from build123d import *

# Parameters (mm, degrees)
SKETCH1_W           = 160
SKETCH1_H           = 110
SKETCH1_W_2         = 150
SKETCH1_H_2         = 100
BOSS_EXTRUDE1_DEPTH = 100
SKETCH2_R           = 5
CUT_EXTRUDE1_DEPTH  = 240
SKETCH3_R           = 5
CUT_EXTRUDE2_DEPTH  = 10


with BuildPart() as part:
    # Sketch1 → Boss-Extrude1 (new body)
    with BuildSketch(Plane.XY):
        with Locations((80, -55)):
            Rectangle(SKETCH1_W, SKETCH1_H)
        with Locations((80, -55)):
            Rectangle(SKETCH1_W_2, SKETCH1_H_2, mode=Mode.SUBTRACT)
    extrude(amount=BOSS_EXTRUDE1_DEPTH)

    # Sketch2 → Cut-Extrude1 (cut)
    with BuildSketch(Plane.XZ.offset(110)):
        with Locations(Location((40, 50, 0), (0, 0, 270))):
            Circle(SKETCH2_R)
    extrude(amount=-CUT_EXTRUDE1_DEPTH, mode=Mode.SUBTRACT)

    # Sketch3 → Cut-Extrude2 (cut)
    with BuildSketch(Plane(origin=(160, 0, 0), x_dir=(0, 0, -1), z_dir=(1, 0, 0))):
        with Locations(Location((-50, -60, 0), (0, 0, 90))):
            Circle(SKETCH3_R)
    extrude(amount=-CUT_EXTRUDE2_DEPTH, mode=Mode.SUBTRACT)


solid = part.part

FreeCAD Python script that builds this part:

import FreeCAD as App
import Part
import Sketcher

V = App.Vector
Q = App.Units.Quantity

doc = App.newDocument("Part")
body = doc.addObject("PartDesign::Body", "Body")

# Sketch on XY plane
sketch1 = body.newObject("Sketcher::SketchObject", "Sketch")
sketch1.AttachmentSupport = (doc.getObject("XY_Plane"), [""])
sketch1.MapMode = "FlatFace"
sketch1.addGeometry(Part.LineSegment(V(0, 0, 0), V(0, -110, 0)), False)
sketch1.addGeometry(Part.LineSegment(V(0, -110, 0), V(160, -110, 0)), False)
sketch1.addGeometry(Part.LineSegment(V(160, -110, 0), V(160, 0, 0)), False)
sketch1.addGeometry(Part.LineSegment(V(160, 0, 0), V(0, 0, 0)), False)
sketch1.addGeometry(Part.LineSegment(V(155, -105, 0), V(5, -105, 0)), False)
sketch1.addGeometry(Part.LineSegment(V(5, -105, 0), V(5, -5, 0)), False)
sketch1.addGeometry(Part.LineSegment(V(5, -5, 0), V(155, -5, 0)), False)
sketch1.addGeometry(Part.LineSegment(V(155, -5, 0), V(155, -105, 0)), False)
sketch1.addConstraint(Sketcher.Constraint("Coincident", 0, 2, 1, 1))
sketch1.addConstraint(Sketcher.Constraint("Coincident", 1, 2, 2, 1))
sketch1.addConstraint(Sketcher.Constraint("Coincident", 2, 2, 3, 1))
sketch1.addConstraint(Sketcher.Constraint("Coincident", 3, 2, 0, 1))
sketch1.addConstraint(Sketcher.Constraint("Coincident", 4, 2, 5, 1))
sketch1.addConstraint(Sketcher.Constraint("Coincident", 5, 2, 6, 1))
sketch1.addConstraint(Sketcher.Constraint("Coincident", 6, 2, 7, 1))
sketch1.addConstraint(Sketcher.Constraint("Coincident", 7, 2, 4, 1))
sketch1.addConstraint(Sketcher.Constraint("Vertical", 0))
sketch1.addConstraint(Sketcher.Constraint("Horizontal", 1))
sketch1.addConstraint(Sketcher.Constraint("Vertical", 2))
sketch1.addConstraint(Sketcher.Constraint("Horizontal", 3))
sketch1.addConstraint(Sketcher.Constraint("Horizontal", 4))
sketch1.addConstraint(Sketcher.Constraint("Vertical", 5))
sketch1.addConstraint(Sketcher.Constraint("Horizontal", 6))
sketch1.addConstraint(Sketcher.Constraint("Vertical", 7))
sketch1.addConstraint(Sketcher.Constraint("Coincident", 3, 2, -1, 1))
sketch1.addConstraint(Sketcher.Constraint("DistanceX", 1, 1, 1, 2, Q("160 mm")))
sketch1.addConstraint(Sketcher.Constraint("DistanceX", 4, 2, 4, 1, Q("150 mm")))
sketch1.addConstraint(Sketcher.Constraint("DistanceY", 0, 2, 0, 1, Q("110 mm")))
sketch1.addConstraint(Sketcher.Constraint("DistanceY", 5, 1, 5, 2, Q("100 mm")))
sketch1.addConstraint(Sketcher.Constraint("DistanceX", -1, 1, 4, 2, Q("5 mm")))
sketch1.addConstraint(Sketcher.Constraint("DistanceY", 4, 2, -1, 1, Q("105 mm")))
pad1 = body.newObject("PartDesign::Pad", "Pad")
pad1.Profile = sketch1
pad1.Length = 100

# Sketch on XZ plane
sketch2 = body.newObject("Sketcher::SketchObject", "Sketch001")
sketch2.AttachmentSupport = (doc.getObject("XZ_Plane"), [""])
sketch2.MapMode = "FlatFace"
sketch2.AttachmentOffset = App.Placement(V(0, 0, 110), App.Rotation())
sketch2.addGeometry(Part.Circle(V(40, 50, 0), V(0, 0, 1), 5), False)
sketch2.addConstraint(Sketcher.Constraint("Diameter", 0, Q("10 mm")))
sketch2.addConstraint(Sketcher.Constraint("DistanceX", -1, 1, 0, 3, Q("40 mm")))
sketch2.addConstraint(Sketcher.Constraint("DistanceY", -1, 1, 0, 3, Q("50 mm")))
pocket1 = body.newObject("PartDesign::Pocket", "Pocket")
pocket1.Profile = sketch2
pocket1.Length = 240

# Sketch on YZ plane
sketch3 = body.newObject("Sketcher::SketchObject", "Sketch002")
sketch3.AttachmentSupport = (doc.getObject("YZ_Plane"), [""])
sketch3.MapMode = "FlatFace"
sketch3.AttachmentOffset = App.Placement(V(0, 0, 160), App.Rotation())
sketch3.addGeometry(Part.Circle(V(-60, 50, 0), V(0, 0, 1), 5), False)
sketch3.addConstraint(Sketcher.Constraint("Diameter", 0, Q("10 mm")))
sketch3.addConstraint(Sketcher.Constraint("DistanceX", 0, 3, -1, 1, Q("60 mm")))
sketch3.addConstraint(Sketcher.Constraint("DistanceY", -1, 1, 0, 3, Q("50 mm")))
pocket2 = body.newObject("PartDesign::Pocket", "Pocket001")
pocket2.Profile = sketch3
pocket2.Length = 10

doc.recompute()
